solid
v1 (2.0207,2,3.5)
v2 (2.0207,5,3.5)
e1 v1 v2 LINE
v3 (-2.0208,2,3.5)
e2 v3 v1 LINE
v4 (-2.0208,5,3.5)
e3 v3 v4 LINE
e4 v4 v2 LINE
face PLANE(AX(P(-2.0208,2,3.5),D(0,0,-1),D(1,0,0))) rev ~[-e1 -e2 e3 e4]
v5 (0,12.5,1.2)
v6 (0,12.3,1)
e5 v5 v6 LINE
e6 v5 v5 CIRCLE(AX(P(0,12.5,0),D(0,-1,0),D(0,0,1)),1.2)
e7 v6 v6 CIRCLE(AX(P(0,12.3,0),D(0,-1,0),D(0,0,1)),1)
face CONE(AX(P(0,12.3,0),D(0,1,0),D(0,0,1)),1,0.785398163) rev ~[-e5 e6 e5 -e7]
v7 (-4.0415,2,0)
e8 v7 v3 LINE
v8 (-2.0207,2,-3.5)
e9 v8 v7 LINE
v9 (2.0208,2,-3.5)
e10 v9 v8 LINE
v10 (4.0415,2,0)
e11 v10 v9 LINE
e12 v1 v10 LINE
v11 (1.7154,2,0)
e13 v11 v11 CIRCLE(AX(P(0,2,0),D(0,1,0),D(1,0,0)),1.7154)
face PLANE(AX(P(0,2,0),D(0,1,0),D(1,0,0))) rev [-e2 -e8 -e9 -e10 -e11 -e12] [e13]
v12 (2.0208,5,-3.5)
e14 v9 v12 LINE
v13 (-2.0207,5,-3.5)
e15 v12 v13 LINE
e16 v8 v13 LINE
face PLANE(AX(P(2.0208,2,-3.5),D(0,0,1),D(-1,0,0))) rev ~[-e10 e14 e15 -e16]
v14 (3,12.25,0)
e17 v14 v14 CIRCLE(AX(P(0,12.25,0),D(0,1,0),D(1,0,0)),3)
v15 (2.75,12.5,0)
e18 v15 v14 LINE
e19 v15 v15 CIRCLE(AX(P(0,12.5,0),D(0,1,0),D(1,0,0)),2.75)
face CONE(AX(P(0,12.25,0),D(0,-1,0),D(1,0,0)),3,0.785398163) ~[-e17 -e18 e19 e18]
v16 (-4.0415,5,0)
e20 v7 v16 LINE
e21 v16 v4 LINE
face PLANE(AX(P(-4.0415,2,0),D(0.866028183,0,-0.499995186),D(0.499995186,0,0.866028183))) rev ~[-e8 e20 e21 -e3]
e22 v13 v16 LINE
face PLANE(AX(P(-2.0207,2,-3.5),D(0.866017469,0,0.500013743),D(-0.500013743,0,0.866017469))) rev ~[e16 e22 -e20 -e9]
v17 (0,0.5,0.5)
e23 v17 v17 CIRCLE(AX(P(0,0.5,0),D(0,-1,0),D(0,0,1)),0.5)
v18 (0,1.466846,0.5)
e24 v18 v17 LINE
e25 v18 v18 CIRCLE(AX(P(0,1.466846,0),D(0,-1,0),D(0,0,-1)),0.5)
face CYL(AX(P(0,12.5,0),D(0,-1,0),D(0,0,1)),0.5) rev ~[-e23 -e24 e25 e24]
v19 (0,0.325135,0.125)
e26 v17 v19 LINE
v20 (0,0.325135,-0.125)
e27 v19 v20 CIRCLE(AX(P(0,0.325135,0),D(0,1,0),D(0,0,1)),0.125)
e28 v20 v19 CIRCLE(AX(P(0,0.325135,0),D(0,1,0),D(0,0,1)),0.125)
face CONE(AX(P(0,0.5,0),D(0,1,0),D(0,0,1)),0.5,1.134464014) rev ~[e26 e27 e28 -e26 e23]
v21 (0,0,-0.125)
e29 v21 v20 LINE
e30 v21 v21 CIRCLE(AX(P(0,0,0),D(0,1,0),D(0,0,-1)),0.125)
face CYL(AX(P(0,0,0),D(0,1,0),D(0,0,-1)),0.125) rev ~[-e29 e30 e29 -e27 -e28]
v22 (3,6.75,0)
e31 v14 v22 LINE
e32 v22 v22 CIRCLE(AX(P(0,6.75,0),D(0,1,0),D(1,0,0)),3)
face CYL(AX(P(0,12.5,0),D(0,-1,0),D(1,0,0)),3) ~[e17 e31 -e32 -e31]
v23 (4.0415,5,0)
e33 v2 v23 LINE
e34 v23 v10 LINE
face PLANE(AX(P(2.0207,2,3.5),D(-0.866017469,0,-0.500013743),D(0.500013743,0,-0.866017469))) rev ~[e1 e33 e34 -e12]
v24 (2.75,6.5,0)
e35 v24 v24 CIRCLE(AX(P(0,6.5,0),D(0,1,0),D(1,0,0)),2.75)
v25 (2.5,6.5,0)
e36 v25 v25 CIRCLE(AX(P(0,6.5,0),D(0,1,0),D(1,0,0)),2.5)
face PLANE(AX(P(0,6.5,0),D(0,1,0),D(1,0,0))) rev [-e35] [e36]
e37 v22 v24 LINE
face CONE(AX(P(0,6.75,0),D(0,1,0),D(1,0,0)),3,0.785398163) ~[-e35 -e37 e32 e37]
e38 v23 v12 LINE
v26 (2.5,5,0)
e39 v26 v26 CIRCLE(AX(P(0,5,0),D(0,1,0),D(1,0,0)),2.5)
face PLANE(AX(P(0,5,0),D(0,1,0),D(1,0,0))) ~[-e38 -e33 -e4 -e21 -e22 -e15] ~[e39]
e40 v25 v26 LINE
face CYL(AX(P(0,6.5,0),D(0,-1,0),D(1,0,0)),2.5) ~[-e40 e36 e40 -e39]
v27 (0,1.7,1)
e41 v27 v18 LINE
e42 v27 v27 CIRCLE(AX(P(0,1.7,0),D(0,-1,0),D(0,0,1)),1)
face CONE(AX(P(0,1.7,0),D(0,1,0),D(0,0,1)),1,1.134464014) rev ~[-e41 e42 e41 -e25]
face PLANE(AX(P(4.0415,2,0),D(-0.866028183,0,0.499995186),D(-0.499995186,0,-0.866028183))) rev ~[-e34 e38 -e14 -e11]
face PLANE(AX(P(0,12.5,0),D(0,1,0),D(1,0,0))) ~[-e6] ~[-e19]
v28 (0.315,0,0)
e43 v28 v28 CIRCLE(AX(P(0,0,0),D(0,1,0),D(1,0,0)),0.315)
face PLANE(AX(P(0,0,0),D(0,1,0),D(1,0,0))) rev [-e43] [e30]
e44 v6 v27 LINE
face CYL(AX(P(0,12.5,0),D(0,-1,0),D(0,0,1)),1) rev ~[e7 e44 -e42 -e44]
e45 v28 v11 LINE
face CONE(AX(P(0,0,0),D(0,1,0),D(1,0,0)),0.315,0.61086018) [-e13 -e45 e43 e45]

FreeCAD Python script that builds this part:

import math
import FreeCAD as App
import Part
import Sketcher
from FreeCAD import Vector
Q = App.Units.Quantity


def edges_at(feature, points):
    """Names of the edges that pass closest to the given points."""
    edges = feature.Shape.Edges
    near = lambda p: min(range(len(edges)), key=lambda i: edges[i].distToShape(Part.Vertex(*p))[0])
    return sorted({f"Edge{near(p) + 1}" for p in points})


def add_polygon(sketch, points):
    """Adds a closed chain of lines whose ends are joined by coincident constraints."""
    first, n = sketch.GeometryCount, len(points)
    for a, b in zip(points, points[1:] + points[:1]):
        sketch.addGeometry(Part.LineSegment(App.Vector(*a, 0), App.Vector(*b, 0)), False)
    for i in range(n):
        sketch.addConstraint(Sketcher.Constraint("Coincident", first + i, 2, first + (i + 1) % n, 1))

doc = App.newDocument("Part")
body = doc.addObject("PartDesign::Body", "Body")

# Sketch on XY plane
sketch1 = doc.addObject("Sketcher::SketchObject", "Sketch")
body.addObject(sketch1)
sketch1.AttachmentSupport = (doc.XY_Plane, [""])
sketch1.MapMode = "FlatFace"
add_polygon(sketch1, [(0, 12.5), (0, 0), (0.32, 0), (1.72, 2), (4.04, 2), (4.04, 5), (2.5, 5), (2.5, 6.5), (3, 6.5), (3, 12.5)])  # lines 0-9
sketch1.addConstraint([
    Sketcher.Constraint("Vertical", 0),
    Sketcher.Constraint("Horizontal", 1),
    Sketcher.Constraint("Horizontal", 3),
    Sketcher.Constraint("Vertical", 4),
    Sketcher.Constraint("Horizontal", 5),
    Sketcher.Constraint("Vertical", 6),
    Sketcher.Constraint("Horizontal", 7),
    Sketcher.Constraint("Vertical", 8),
    Sketcher.Constraint("Horizontal", 9),
    Sketcher.Constraint("Coincident", 0, 2, -1, 1),
    Sketcher.Constraint("Equal", 9, 4),
    Sketcher.Constraint("DistanceY", 8, 1, 8, 2, 6.0),
    Sketcher.Constraint("DistanceY", 0, 2, 0, 1, 12.5),
    Sketcher.Constraint("DistanceY", -1, 1, 4, 2, 5.0),
    Sketcher.Constraint("DistanceY", 3, 2, 8, 2, 10.5),
    Sketcher.Constraint("Angle", 2, Q("55.0003 deg")),
    Sketcher.Constraint("DistanceX", 7, 1, 7, 2, 0.5),
    Sketcher.Constraint("DistanceX", 1, 1, 1, 2, 0.315),
    Sketcher.Constraint("DistanceX", 3, 1, 3, 2, 2.326),
])
revolution = doc.addObject("PartDesign::Revolution", "Revolution")
body.addObject(revolution)
revolution.Profile = sketch1
revolution.ReferenceAxis = (sketch1, ["V_Axis"])
revolution.Angle = 360
doc.recompute()

chamfer = doc.addObject("PartDesign::Chamfer", "Chamfer")
body.addObject(chamfer)
chamfer.Base = (revolution, edges_at(revolution, [(-3, 12.5, 0), (-3, 6.5, 0)]))
chamfer.Size = 0.25

# Sketch on XZ plane
sketch2 = doc.addObject("Sketcher::SketchObject", "Sketch001")
body.addObject(sketch2)
sketch2.AttachmentSupport = (doc.XZ_Plane, [""])
sketch2.MapMode = "FlatFace"
sketch2.AttachmentOffset = App.Placement(Vector(0, 0, -12.5), App.Rotation())
sketch2.addGeometry(Part.Circle(Vector(0, 0, 0), Vector(0, 0, 1), 0.5), False)
sketch2.addConstraint([
    Sketcher.Constraint("Coincident", 0, 3, -1, 1),
    Sketcher.Constraint("Diameter", 0, 1.0),
])
doc.recompute()
hole = doc.addObject("PartDesign::Hole", "Hole")
body.addObject(hole)
hole.Profile = sketch2
hole.ThreadType = "None"
hole.Diameter = 1
hole.DepthType = "Dimension"
hole.Depth = 12
hole.DrillPoint = "Angled"
hole.DrillPointAngle = 130
hole.Reversed = True

# Sketch on XZ plane
sketch3 = doc.addObject("Sketcher::SketchObject", "Sketch002")
body.addObject(sketch3)
sketch3.AttachmentSupport = (doc.XZ_Plane, [""])
sketch3.MapMode = "FlatFace"
sketch3.AttachmentOffset = App.Placement(Vector(0, 0, -12.5), App.Rotation())
sketch3.addGeometry(Part.Circle(Vector(0, 0, 0), Vector(0, 0, 1), 1), False)
sketch3.addConstraint([
    Sketcher.Constraint("Coincident", 0, 3, -1, 1),
    Sketcher.Constraint("Diameter", 0, 2.0),
])
doc.recompute()
hole2 = doc.addObject("PartDesign::Hole", "Hole001")
body.addObject(hole2)
hole2.Profile = sketch3
hole2.ThreadType = "None"
hole2.Diameter = 2
hole2.DepthType = "Dimension"
hole2.Depth = 10.8
hole2.DrillPoint = "Angled"
hole2.DrillPointAngle = 130
hole2.Reversed = True
doc.recompute()

chamfer2 = doc.addObject("PartDesign::Chamfer", "Chamfer001")
body.addObject(chamfer2)
chamfer2.Base = (hole2, edges_at(hole2, [(0, 12.5, -1)]))
chamfer2.Size = 0.2

# Sketch on XZ plane
sketch4 = doc.addObject("Sketcher::SketchObject", "Sketch003")
body.addObject(sketch4)
sketch4.AttachmentSupport = (doc.XZ_Plane, [""])
sketch4.MapMode = "FlatFace"
sketch4.addGeometry(Part.Circle(Vector(0, 0, 0), Vector(0, 0, 1), 0.12), False)
sketch4.addConstraint([
    Sketcher.Constraint("Coincident", 0, 3, -1, 1),
    Sketcher.Constraint("Diameter", 0, 0.25),
])
doc.recompute()
hole3 = doc.addObject("PartDesign::Hole", "Hole002")
body.addObject(hole3)
hole3.Profile = sketch4
hole3.ThreadType = "None"
hole3.Diameter = 0.25
hole3.DepthType = "Dimension"
hole3.Depth = 0.5
hole3.DrillPoint = "Flat"

# Sketch on XZ plane
sketch5 = doc.addObject("Sketcher::SketchObject", "Sketch004")
body.addObject(sketch5)
sketch5.AttachmentSupport = (doc.XZ_Plane, [""])
sketch5.MapMode = "FlatFace"
sketch5.AttachmentOffset = App.Placement(Vector(0, 0, -2), App.Rotation())
sketch5.addGeometry([
    Part.LineSegment(Vector(2, 3.5, 0), Vector(4, 0, 0)),  # 0
    Part.ArcOfCircle(Part.Circle(Vector(0, 0, 0), Vector(0, 0, 1), 4), math.radians(0), math.radians(60)),  # 1
    Part.ArcOfCircle(Part.Circle(Vector(0, 0, 0), Vector(0, 0, 1), 4), math.radians(-60), math.radians(0)),  # 2
    Part.LineSegment(Vector(4, 0, 0), Vector(2, -3.5, 0)),  # 3
    Part.LineSegment(Vector(-2, 3.5, 0), Vector(2, 3.5, 0)),  # 4
    Part.ArcOfCircle(Part.Circle(Vector(0, 0, 0), Vector(0, 0, 1), 4), math.radians(60), math.radians(120)),  # 5
    Part.ArcOfCircle(Part.Circle(Vector(0, 0, 0), Vector(0, 0, 1), 4), math.radians(-120), math.radians(-60)),  # 6
    Part.LineSegment(Vector(-2, -3.5, 0), Vector(2, -3.5, 0)),  # 7
    Part.LineSegment(Vector(-4, 0, 0), Vector(-2, 3.5, 0)),  # 8
    Part.ArcOfCircle(Part.Circle(Vector(0, 0, 0), Vector(0, 0, 1), 4), math.radians(120), math.radians(180)),  # 9
    Part.ArcOfCircle(Part.Circle(Vector(0, 0, 0), Vector(0, 0, 1), 4), math.radians(180), math.radians(240)),  # 10
    Part.LineSegment(Vector(-4, 0, 0), Vector(-2, -3.5, 0)),  # 11
], False)
sketch5.addConstraint([
    Sketcher.Constraint("Coincident", 0, 1, 1, 2),
    Sketcher.Constraint("Coincident", 1, 1, 0, 2),
    Sketcher.Constraint("Coincident", 2, 1, 3, 2),
    Sketcher.Constraint("Coincident", 3, 1, 2, 2),
    Sketcher.Constraint("Coincident", 4, 1, 5, 2),
    Sketcher.Constraint("Coincident", 5, 1, 4, 2),
    Sketcher.Constraint("Coincident", 6, 1, 7, 1),
    Sketcher.Constraint("Coincident", 7, 2, 6, 2),
    Sketcher.Constraint("Coincident", 8, 1, 9, 2),
    Sketcher.Constraint("Coincident", 9, 1, 8, 2),
    Sketcher.Constraint("Coincident", 10, 1, 11, 1),
    Sketcher.Constraint("Coincident", 11, 2, 10, 2),
    Sketcher.Constraint("Horizontal", 4),
    Sketcher.Constraint("Horizontal", 7),
    Sketcher.Constraint("Coincident", 1, 3, -1, 1),
    Sketcher.Constraint("Coincident", 2, 3, -1, 1),
    Sketcher.Constraint("Coincident", 5, 3, -1, 1),
    Sketcher.Constraint("Coincident", 6, 3, -1, 1),
    Sketcher.Constraint("Coincident", 9, 3, -1, 1),
    Sketcher.Constraint("Coincident", 10, 3, -1, 1),
    Sketcher.Constraint("Coincident", 3, 1, 1, 1),
    Sketcher.Constraint("Coincident", 5, 1, 0, 1),
    Sketcher.Constraint("Coincident", 7, 2, 2, 1),
    Sketcher.Constraint("Coincident", 9, 1, 4, 1),
    Sketcher.Constraint("Coincident", 10, 1, 8, 1),
    Sketcher.Constraint("PointOnObject", 1, 1, -1),
    Sketcher.Constraint("PointOnObject", 8, 1, -1),
    Sketcher.Constraint("Parallel", 3, 8),
    Sketcher.Constraint("Parallel", 0, 11),
    Sketcher.Constraint("Angle", 0, Q("-59.999 deg")),
    Sketcher.Constraint("DistanceY", -1, 1, 0, 1, 3.5),
])
pocket1 = doc.addObject("PartDesign::Pocket", "Pocket")
body.addObject(pocket1)
pocket1.Profile = sketch5
pocket1.Length = 3

doc.recompute()
